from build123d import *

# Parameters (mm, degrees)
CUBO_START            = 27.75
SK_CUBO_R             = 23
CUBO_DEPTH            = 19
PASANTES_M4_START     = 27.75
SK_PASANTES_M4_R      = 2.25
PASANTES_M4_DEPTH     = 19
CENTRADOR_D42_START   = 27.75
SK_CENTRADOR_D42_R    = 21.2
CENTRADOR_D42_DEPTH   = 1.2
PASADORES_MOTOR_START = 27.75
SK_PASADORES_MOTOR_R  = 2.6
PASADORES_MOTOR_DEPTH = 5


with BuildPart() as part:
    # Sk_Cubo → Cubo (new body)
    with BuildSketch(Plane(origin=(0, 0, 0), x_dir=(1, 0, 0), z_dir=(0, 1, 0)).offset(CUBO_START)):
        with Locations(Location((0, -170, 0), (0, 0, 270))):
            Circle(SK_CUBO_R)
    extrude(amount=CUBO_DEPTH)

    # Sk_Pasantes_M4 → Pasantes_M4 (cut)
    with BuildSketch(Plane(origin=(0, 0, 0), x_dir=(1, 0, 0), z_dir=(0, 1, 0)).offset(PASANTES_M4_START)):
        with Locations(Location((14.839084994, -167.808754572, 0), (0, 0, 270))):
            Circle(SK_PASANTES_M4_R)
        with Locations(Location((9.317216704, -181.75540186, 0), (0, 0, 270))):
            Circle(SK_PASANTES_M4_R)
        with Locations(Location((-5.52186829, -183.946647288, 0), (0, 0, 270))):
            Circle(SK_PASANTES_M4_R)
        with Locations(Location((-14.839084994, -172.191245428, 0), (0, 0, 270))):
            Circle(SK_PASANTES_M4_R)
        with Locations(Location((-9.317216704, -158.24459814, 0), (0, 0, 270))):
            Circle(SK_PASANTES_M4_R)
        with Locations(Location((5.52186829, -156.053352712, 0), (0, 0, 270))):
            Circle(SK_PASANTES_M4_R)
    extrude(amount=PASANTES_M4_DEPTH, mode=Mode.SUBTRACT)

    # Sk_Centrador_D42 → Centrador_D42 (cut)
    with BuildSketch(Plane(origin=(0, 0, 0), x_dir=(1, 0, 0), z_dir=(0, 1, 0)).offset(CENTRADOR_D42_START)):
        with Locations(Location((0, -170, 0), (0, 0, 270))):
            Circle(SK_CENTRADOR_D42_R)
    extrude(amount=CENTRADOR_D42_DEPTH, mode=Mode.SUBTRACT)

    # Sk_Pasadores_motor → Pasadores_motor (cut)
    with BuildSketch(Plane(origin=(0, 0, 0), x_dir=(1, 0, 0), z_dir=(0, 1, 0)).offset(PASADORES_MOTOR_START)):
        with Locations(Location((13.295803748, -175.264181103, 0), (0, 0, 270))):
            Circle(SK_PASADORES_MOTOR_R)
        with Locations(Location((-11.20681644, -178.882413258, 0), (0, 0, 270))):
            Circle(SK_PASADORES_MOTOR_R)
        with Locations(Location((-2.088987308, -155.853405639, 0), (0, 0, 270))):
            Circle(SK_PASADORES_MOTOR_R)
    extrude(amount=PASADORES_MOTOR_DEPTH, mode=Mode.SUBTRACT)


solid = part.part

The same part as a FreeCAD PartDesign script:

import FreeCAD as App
import Part
import Sketcher
from FreeCAD import Vector

doc = App.newDocument("Part")
body = doc.addObject("PartDesign::Body", "Body")

# Sketch on XZ plane
sketch1 = body.newObject("Sketcher::SketchObject", "Sketch")
sketch1.AttachmentSupport = (doc.getObject("XZ_Plane"), [""])
sketch1.MapMode = "FlatFace"
sketch1.AttachmentOffset = App.Placement(Vector(0, 0, -27.75), App.Rotation())
sketch1.addGeometry(Part.Circle(Vector(0, 170, 0), Vector(0, 0, 1), 23), False)
sketch1.addConstraint([
    Sketcher.Constraint("PointOnObject", 0, 3, -2),
    Sketcher.Constraint("Diameter", 0, 46.0),
    Sketcher.Constraint("DistanceY", -1, 1, 0, 3, 170.0),
])
pad1 = body.newObject("PartDesign::Pad", "Pad")
pad1.Profile = sketch1
pad1.Length = 19
pad1.Reversed = True

# Sketch on XZ plane
sketch2 = body.newObject("Sketcher::SketchObject", "Sketch001")
sketch2.AttachmentSupport = (doc.getObject("XZ_Plane"), [""])
sketch2.MapMode = "FlatFace"
sketch2.AttachmentOffset = App.Placement(Vector(0, 0, -27.75), App.Rotation())
sketch2.addGeometry([
    Part.Circle(Vector(14.8, 167.8, 0), Vector(0, 0, 1), 2.2),  # 0
    Part.Circle(Vector(9.3, 181.8, 0), Vector(0, 0, 1), 2.2),  # 1
    Part.Circle(Vector(-5.5, 183.9, 0), Vector(0, 0, 1), 2.2),  # 2
    Part.Circle(Vector(-14.8, 172.2, 0), Vector(0, 0, 1), 2.2),  # 3
    Part.Circle(Vector(-9.3, 158.2, 0), Vector(0, 0, 1), 2.2),  # 4
    Part.Circle(Vector(5.5, 156.1, 0), Vector(0, 0, 1), 2.2),  # 5
], False)
sketch2.addConstraint([
    Sketcher.Constraint("Equal", 0, 1),
    Sketcher.Constraint("Equal", 1, 2),
    Sketcher.Constraint("Equal", 2, 3),
    Sketcher.Constraint("Equal", 3, 4),
    Sketcher.Constraint("Equal", 4, 5),
    Sketcher.Constraint("Diameter", 0, 4.5),
    Sketcher.Constraint("DistanceY", -1, 1, 1, 3, 181.755402),
    Sketcher.Constraint("DistanceY", -1, 1, 4, 3, 158.244598),
    Sketcher.Constraint("DistanceY", 3, 3, 2, 3, 11.755402),
    Sketcher.Constraint("DistanceX", 3, 3, 1, 3, 24.156302),
    Sketcher.Constraint("DistanceX", 4, 3, 0, 3, 24.156302),
    Sketcher.Constraint("DistanceY", 5, 3, 0, 3, 11.755402),
    Sketcher.Constraint("DistanceX", 2, 3, -1, 1, 5.521868),
    Sketcher.Constraint("DistanceX", -1, 1, 5, 3, 5.521868),
    Sketcher.Constraint("DistanceX", 1, 3, 0, 3, 5.521868),
    Sketcher.Constraint("DistanceY", 0, 3, 3, 3, 4.382491),
    Sketcher.Constraint("DistanceX", 4, 3, 2, 3, 3.795348),
    Sketcher.Constraint("DistanceY", 4, 3, 2, 3, 25.702049),
])
pocket1 = body.newObject("PartDesign::Pocket", "Pocket")
pocket1.Profile = sketch2
pocket1.Length = 19

# Sketch on XZ plane
sketch3 = body.newObject("Sketcher::SketchObject", "Sketch002")
sketch3.AttachmentSupport = (doc.getObject("XZ_Plane"), [""])
sketch3.MapMode = "FlatFace"
sketch3.AttachmentOffset = App.Placement(Vector(0, 0, -27.75), App.Rotation())
sketch3.addGeometry(Part.Circle(Vector(0, 170, 0), Vector(0, 0, 1), 21), False)
sketch3.addConstraint([
    Sketcher.Constraint("PointOnObject", 0, 3, -2),
    Sketcher.Constraint("Diameter", 0, 42.4),
    Sketcher.Constraint("DistanceY", -1, 1, 0, 3, 170.0),
])
pocket2 = body.newObject("PartDesign::Pocket", "Pocket001")
pocket2.Profile = sketch3
pocket2.Length = 1.2

# Sketch on XZ plane
sketch4 = body.newObject("Sketcher::SketchObject", "Sketch003")
sketch4.AttachmentSupport = (doc.getObject("XZ_Plane"), [""])
sketch4.MapMode = "FlatFace"
sketch4.AttachmentOffset = App.Placement(Vector(0, 0, -27.75), App.Rotation())
sketch4.addGeometry([
    Part.Circle(Vector(13.3, 175.3, 0), Vector(0, 0, 1), 2.6),
    Part.Circle(Vector(-11.2, 178.9, 0), Vector(0, 0, 1), 2.6),
    Part.Circle(Vector(-2.1, 155.9, 0), Vector(0, 0, 1), 2.6),
], False)
sketch4.addConstraint([
    Sketcher.Constraint("Equal", 0, 1),
    Sketcher.Constraint("Equal", 1, 2),
    Sketcher.Constraint("Diameter", 0, 5.2),
    Sketcher.Constraint("DistanceY", -1, 1, 0, 3, 175.264181),
    Sketcher.Constraint("DistanceX", 1, 3, 0, 3, 24.50262),
    Sketcher.Constraint("DistanceX", 2, 3, 0, 3, 15.384791),
    Sketcher.Constraint("DistanceX", -1, 1, 0, 3, 13.295804),
    Sketcher.Constraint("DistanceY", -1, 1, 1, 3, 178.882413),
    Sketcher.Constraint("DistanceY", -1, 1, 2, 3, 155.853406),
])
pocket3 = body.newObject("PartDesign::Pocket", "Pocket002")
pocket3.Profile = sketch4
pocket3.Length = 5

doc.recompute()
